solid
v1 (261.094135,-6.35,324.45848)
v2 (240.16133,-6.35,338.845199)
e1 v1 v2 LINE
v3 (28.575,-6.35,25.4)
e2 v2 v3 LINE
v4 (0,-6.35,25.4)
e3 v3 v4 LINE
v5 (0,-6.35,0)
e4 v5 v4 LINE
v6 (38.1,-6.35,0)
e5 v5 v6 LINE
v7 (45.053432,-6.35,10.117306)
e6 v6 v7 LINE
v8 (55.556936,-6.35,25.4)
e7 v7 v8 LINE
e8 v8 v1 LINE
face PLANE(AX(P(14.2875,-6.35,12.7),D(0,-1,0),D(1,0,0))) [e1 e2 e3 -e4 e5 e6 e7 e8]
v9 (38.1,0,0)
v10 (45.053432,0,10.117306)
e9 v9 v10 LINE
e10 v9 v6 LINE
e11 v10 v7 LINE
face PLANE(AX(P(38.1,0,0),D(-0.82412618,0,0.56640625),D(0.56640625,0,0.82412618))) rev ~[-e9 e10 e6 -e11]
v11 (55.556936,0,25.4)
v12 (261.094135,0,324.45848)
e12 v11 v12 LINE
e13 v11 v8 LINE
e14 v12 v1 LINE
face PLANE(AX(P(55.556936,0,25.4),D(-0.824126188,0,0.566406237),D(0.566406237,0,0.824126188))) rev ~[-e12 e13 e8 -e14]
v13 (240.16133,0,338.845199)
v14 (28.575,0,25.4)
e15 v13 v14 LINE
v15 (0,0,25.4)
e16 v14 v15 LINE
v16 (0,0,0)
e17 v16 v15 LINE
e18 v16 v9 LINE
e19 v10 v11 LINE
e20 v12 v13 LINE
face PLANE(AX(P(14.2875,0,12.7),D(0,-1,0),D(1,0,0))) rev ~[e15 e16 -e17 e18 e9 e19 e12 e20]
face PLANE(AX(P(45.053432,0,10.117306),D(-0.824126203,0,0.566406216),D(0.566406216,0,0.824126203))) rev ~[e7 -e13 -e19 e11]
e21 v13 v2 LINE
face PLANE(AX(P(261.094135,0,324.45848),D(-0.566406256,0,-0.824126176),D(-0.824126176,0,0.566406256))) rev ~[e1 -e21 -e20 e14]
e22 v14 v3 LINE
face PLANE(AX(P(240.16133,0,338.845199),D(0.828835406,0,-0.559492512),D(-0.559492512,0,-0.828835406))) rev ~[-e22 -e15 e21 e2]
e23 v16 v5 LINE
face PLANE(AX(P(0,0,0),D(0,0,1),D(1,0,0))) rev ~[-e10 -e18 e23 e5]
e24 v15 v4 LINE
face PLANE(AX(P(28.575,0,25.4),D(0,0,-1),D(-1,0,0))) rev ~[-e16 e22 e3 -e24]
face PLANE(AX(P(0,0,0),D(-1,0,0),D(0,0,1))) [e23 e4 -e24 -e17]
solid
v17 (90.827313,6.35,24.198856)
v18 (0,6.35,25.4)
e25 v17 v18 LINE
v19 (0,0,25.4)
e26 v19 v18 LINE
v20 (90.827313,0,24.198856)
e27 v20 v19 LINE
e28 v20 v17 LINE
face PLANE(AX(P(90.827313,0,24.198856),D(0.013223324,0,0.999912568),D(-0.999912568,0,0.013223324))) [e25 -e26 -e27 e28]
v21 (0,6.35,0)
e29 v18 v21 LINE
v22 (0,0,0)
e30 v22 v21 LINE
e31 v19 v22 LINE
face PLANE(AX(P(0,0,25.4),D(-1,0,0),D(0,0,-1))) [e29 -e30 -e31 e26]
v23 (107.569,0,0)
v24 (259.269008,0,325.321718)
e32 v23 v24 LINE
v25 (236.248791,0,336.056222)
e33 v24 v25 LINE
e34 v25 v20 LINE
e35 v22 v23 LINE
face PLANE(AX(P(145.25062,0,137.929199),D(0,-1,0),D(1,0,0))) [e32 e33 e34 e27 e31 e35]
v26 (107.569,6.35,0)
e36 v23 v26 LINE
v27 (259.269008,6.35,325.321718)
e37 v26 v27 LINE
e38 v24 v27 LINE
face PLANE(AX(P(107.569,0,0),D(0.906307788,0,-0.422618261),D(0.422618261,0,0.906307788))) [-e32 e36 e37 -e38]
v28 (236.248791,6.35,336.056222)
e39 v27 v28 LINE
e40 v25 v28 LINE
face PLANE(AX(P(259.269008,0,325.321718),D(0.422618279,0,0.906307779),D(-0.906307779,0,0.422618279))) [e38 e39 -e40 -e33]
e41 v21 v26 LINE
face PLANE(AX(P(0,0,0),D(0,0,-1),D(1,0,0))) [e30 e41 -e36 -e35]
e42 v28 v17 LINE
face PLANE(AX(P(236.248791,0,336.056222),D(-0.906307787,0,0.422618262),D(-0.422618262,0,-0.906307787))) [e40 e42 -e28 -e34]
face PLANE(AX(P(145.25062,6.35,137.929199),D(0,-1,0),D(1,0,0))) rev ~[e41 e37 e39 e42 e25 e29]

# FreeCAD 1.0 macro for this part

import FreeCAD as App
import Part
import Sketcher

V = App.Vector
Q = App.Units.Quantity


def add_polygon(sketch, points):
    """Adds a closed chain of lines whose ends are joined by coincident constraints."""
    first, n = sketch.GeometryCount, len(points)
    for a, b in zip(points, points[1:] + points[:1]):
        sketch.addGeometry(Part.LineSegment(App.Vector(*a, 0), App.Vector(*b, 0)), False)
    for i in range(n):
        sketch.addConstraint(Sketcher.Constraint("Coincident", first + i, 2, first + (i + 1) % n, 1))

doc = App.newDocument("Part")
body = doc.addObject("PartDesign::Body", "Body")

# Sketch on XZ plane
sketch1 = body.newObject("Sketcher::SketchObject", "Sketch")
sketch1.AttachmentSupport = (doc.getObject("XZ_Plane"), [""])
sketch1.MapMode = "FlatFace"
add_polygon(sketch1, [(0, 25), (0, 0), (38, 0), (45, 10), (56, 25), (261, 324), (240, 339), (29, 25)])  # lines 0-7
sketch1.addConstraint([
    Sketcher.Constraint("Vertical", 0),
    Sketcher.Constraint("Horizontal", 1),
    Sketcher.Constraint("Horizontal", 7),
    Sketcher.Constraint("Coincident", 0, 2, -1, 1),
    Sketcher.Constraint("Parallel", 2, 3),
    Sketcher.Constraint("Parallel", 3, 4),
    Sketcher.Constraint("Perpendicular", 4, 5),
    Sketcher.Constraint("Horizontal", 3, 2, 6, 2),
    Sketcher.Constraint("DistanceY", 0, 2, 0, 1, Q("1 in")),
    Sketcher.Constraint("Distance", 5, Q("1 in")),
    Sketcher.Constraint("DistanceX", 1, 1, 1, 2, Q("1.5 in")),
    Sketcher.Constraint("Angle", 2, Q("55.499999 deg")),
    Sketcher.Constraint("DistanceX", 7, 2, 7, 1, Q("1.125 in")),
    Sketcher.Constraint("DistanceY", -1, 1, 5, 2, 338.845199),
    Sketcher.Constraint("Distance", 3, 18.544119),
])
pad1 = body.newObject("PartDesign::Pad", "Pad")
pad1.Profile = sketch1
pad1.Length = Q("0.25 in")
body2 = doc.addObject("PartDesign::Body", "Body001")

# Sketch on XZ plane
sketch2 = body2.newObject("Sketcher::SketchObject", "Sketch001")
sketch2.AttachmentSupport = (doc.getObject("XZ_Plane001"), [""])
sketch2.MapMode = "FlatFace"
add_polygon(sketch2, [(0, 25), (0, 0), (108, 0), (259, 325), (236, 336), (91, 24)])  # lines 0-5
sketch2.addConstraint([
    Sketcher.Constraint("Vertical", 0),
    Sketcher.Constraint("Horizontal", 1),
    Sketcher.Constraint("Coincident", 0, 2, -1, 1),
    Sketcher.Constraint("Perpendicular", 2, 3),
    Sketcher.Constraint("Perpendicular", 3, 4),
    Sketcher.Constraint("DistanceY", 0, 2, 0, 1, Q("1 in")),
    Sketcher.Constraint("Distance", 3, Q("1 in")),
    Sketcher.Constraint("Angle", 2, Q("65 deg")),
    Sketcher.Constraint("DistanceX", 1, 1, 1, 2, Q("4.235 in")),
    Sketcher.Constraint("Distance", 2, Q("14.132 in")),
    Sketcher.Constraint("Distance", 4, 344.096532),
])
pad2 = body2.newObject("PartDesign::Pad", "Pad001")
pad2.Profile = sketch2
pad2.Length = Q("0.25 in")
pad2.Reversed = True

doc.recompute()
